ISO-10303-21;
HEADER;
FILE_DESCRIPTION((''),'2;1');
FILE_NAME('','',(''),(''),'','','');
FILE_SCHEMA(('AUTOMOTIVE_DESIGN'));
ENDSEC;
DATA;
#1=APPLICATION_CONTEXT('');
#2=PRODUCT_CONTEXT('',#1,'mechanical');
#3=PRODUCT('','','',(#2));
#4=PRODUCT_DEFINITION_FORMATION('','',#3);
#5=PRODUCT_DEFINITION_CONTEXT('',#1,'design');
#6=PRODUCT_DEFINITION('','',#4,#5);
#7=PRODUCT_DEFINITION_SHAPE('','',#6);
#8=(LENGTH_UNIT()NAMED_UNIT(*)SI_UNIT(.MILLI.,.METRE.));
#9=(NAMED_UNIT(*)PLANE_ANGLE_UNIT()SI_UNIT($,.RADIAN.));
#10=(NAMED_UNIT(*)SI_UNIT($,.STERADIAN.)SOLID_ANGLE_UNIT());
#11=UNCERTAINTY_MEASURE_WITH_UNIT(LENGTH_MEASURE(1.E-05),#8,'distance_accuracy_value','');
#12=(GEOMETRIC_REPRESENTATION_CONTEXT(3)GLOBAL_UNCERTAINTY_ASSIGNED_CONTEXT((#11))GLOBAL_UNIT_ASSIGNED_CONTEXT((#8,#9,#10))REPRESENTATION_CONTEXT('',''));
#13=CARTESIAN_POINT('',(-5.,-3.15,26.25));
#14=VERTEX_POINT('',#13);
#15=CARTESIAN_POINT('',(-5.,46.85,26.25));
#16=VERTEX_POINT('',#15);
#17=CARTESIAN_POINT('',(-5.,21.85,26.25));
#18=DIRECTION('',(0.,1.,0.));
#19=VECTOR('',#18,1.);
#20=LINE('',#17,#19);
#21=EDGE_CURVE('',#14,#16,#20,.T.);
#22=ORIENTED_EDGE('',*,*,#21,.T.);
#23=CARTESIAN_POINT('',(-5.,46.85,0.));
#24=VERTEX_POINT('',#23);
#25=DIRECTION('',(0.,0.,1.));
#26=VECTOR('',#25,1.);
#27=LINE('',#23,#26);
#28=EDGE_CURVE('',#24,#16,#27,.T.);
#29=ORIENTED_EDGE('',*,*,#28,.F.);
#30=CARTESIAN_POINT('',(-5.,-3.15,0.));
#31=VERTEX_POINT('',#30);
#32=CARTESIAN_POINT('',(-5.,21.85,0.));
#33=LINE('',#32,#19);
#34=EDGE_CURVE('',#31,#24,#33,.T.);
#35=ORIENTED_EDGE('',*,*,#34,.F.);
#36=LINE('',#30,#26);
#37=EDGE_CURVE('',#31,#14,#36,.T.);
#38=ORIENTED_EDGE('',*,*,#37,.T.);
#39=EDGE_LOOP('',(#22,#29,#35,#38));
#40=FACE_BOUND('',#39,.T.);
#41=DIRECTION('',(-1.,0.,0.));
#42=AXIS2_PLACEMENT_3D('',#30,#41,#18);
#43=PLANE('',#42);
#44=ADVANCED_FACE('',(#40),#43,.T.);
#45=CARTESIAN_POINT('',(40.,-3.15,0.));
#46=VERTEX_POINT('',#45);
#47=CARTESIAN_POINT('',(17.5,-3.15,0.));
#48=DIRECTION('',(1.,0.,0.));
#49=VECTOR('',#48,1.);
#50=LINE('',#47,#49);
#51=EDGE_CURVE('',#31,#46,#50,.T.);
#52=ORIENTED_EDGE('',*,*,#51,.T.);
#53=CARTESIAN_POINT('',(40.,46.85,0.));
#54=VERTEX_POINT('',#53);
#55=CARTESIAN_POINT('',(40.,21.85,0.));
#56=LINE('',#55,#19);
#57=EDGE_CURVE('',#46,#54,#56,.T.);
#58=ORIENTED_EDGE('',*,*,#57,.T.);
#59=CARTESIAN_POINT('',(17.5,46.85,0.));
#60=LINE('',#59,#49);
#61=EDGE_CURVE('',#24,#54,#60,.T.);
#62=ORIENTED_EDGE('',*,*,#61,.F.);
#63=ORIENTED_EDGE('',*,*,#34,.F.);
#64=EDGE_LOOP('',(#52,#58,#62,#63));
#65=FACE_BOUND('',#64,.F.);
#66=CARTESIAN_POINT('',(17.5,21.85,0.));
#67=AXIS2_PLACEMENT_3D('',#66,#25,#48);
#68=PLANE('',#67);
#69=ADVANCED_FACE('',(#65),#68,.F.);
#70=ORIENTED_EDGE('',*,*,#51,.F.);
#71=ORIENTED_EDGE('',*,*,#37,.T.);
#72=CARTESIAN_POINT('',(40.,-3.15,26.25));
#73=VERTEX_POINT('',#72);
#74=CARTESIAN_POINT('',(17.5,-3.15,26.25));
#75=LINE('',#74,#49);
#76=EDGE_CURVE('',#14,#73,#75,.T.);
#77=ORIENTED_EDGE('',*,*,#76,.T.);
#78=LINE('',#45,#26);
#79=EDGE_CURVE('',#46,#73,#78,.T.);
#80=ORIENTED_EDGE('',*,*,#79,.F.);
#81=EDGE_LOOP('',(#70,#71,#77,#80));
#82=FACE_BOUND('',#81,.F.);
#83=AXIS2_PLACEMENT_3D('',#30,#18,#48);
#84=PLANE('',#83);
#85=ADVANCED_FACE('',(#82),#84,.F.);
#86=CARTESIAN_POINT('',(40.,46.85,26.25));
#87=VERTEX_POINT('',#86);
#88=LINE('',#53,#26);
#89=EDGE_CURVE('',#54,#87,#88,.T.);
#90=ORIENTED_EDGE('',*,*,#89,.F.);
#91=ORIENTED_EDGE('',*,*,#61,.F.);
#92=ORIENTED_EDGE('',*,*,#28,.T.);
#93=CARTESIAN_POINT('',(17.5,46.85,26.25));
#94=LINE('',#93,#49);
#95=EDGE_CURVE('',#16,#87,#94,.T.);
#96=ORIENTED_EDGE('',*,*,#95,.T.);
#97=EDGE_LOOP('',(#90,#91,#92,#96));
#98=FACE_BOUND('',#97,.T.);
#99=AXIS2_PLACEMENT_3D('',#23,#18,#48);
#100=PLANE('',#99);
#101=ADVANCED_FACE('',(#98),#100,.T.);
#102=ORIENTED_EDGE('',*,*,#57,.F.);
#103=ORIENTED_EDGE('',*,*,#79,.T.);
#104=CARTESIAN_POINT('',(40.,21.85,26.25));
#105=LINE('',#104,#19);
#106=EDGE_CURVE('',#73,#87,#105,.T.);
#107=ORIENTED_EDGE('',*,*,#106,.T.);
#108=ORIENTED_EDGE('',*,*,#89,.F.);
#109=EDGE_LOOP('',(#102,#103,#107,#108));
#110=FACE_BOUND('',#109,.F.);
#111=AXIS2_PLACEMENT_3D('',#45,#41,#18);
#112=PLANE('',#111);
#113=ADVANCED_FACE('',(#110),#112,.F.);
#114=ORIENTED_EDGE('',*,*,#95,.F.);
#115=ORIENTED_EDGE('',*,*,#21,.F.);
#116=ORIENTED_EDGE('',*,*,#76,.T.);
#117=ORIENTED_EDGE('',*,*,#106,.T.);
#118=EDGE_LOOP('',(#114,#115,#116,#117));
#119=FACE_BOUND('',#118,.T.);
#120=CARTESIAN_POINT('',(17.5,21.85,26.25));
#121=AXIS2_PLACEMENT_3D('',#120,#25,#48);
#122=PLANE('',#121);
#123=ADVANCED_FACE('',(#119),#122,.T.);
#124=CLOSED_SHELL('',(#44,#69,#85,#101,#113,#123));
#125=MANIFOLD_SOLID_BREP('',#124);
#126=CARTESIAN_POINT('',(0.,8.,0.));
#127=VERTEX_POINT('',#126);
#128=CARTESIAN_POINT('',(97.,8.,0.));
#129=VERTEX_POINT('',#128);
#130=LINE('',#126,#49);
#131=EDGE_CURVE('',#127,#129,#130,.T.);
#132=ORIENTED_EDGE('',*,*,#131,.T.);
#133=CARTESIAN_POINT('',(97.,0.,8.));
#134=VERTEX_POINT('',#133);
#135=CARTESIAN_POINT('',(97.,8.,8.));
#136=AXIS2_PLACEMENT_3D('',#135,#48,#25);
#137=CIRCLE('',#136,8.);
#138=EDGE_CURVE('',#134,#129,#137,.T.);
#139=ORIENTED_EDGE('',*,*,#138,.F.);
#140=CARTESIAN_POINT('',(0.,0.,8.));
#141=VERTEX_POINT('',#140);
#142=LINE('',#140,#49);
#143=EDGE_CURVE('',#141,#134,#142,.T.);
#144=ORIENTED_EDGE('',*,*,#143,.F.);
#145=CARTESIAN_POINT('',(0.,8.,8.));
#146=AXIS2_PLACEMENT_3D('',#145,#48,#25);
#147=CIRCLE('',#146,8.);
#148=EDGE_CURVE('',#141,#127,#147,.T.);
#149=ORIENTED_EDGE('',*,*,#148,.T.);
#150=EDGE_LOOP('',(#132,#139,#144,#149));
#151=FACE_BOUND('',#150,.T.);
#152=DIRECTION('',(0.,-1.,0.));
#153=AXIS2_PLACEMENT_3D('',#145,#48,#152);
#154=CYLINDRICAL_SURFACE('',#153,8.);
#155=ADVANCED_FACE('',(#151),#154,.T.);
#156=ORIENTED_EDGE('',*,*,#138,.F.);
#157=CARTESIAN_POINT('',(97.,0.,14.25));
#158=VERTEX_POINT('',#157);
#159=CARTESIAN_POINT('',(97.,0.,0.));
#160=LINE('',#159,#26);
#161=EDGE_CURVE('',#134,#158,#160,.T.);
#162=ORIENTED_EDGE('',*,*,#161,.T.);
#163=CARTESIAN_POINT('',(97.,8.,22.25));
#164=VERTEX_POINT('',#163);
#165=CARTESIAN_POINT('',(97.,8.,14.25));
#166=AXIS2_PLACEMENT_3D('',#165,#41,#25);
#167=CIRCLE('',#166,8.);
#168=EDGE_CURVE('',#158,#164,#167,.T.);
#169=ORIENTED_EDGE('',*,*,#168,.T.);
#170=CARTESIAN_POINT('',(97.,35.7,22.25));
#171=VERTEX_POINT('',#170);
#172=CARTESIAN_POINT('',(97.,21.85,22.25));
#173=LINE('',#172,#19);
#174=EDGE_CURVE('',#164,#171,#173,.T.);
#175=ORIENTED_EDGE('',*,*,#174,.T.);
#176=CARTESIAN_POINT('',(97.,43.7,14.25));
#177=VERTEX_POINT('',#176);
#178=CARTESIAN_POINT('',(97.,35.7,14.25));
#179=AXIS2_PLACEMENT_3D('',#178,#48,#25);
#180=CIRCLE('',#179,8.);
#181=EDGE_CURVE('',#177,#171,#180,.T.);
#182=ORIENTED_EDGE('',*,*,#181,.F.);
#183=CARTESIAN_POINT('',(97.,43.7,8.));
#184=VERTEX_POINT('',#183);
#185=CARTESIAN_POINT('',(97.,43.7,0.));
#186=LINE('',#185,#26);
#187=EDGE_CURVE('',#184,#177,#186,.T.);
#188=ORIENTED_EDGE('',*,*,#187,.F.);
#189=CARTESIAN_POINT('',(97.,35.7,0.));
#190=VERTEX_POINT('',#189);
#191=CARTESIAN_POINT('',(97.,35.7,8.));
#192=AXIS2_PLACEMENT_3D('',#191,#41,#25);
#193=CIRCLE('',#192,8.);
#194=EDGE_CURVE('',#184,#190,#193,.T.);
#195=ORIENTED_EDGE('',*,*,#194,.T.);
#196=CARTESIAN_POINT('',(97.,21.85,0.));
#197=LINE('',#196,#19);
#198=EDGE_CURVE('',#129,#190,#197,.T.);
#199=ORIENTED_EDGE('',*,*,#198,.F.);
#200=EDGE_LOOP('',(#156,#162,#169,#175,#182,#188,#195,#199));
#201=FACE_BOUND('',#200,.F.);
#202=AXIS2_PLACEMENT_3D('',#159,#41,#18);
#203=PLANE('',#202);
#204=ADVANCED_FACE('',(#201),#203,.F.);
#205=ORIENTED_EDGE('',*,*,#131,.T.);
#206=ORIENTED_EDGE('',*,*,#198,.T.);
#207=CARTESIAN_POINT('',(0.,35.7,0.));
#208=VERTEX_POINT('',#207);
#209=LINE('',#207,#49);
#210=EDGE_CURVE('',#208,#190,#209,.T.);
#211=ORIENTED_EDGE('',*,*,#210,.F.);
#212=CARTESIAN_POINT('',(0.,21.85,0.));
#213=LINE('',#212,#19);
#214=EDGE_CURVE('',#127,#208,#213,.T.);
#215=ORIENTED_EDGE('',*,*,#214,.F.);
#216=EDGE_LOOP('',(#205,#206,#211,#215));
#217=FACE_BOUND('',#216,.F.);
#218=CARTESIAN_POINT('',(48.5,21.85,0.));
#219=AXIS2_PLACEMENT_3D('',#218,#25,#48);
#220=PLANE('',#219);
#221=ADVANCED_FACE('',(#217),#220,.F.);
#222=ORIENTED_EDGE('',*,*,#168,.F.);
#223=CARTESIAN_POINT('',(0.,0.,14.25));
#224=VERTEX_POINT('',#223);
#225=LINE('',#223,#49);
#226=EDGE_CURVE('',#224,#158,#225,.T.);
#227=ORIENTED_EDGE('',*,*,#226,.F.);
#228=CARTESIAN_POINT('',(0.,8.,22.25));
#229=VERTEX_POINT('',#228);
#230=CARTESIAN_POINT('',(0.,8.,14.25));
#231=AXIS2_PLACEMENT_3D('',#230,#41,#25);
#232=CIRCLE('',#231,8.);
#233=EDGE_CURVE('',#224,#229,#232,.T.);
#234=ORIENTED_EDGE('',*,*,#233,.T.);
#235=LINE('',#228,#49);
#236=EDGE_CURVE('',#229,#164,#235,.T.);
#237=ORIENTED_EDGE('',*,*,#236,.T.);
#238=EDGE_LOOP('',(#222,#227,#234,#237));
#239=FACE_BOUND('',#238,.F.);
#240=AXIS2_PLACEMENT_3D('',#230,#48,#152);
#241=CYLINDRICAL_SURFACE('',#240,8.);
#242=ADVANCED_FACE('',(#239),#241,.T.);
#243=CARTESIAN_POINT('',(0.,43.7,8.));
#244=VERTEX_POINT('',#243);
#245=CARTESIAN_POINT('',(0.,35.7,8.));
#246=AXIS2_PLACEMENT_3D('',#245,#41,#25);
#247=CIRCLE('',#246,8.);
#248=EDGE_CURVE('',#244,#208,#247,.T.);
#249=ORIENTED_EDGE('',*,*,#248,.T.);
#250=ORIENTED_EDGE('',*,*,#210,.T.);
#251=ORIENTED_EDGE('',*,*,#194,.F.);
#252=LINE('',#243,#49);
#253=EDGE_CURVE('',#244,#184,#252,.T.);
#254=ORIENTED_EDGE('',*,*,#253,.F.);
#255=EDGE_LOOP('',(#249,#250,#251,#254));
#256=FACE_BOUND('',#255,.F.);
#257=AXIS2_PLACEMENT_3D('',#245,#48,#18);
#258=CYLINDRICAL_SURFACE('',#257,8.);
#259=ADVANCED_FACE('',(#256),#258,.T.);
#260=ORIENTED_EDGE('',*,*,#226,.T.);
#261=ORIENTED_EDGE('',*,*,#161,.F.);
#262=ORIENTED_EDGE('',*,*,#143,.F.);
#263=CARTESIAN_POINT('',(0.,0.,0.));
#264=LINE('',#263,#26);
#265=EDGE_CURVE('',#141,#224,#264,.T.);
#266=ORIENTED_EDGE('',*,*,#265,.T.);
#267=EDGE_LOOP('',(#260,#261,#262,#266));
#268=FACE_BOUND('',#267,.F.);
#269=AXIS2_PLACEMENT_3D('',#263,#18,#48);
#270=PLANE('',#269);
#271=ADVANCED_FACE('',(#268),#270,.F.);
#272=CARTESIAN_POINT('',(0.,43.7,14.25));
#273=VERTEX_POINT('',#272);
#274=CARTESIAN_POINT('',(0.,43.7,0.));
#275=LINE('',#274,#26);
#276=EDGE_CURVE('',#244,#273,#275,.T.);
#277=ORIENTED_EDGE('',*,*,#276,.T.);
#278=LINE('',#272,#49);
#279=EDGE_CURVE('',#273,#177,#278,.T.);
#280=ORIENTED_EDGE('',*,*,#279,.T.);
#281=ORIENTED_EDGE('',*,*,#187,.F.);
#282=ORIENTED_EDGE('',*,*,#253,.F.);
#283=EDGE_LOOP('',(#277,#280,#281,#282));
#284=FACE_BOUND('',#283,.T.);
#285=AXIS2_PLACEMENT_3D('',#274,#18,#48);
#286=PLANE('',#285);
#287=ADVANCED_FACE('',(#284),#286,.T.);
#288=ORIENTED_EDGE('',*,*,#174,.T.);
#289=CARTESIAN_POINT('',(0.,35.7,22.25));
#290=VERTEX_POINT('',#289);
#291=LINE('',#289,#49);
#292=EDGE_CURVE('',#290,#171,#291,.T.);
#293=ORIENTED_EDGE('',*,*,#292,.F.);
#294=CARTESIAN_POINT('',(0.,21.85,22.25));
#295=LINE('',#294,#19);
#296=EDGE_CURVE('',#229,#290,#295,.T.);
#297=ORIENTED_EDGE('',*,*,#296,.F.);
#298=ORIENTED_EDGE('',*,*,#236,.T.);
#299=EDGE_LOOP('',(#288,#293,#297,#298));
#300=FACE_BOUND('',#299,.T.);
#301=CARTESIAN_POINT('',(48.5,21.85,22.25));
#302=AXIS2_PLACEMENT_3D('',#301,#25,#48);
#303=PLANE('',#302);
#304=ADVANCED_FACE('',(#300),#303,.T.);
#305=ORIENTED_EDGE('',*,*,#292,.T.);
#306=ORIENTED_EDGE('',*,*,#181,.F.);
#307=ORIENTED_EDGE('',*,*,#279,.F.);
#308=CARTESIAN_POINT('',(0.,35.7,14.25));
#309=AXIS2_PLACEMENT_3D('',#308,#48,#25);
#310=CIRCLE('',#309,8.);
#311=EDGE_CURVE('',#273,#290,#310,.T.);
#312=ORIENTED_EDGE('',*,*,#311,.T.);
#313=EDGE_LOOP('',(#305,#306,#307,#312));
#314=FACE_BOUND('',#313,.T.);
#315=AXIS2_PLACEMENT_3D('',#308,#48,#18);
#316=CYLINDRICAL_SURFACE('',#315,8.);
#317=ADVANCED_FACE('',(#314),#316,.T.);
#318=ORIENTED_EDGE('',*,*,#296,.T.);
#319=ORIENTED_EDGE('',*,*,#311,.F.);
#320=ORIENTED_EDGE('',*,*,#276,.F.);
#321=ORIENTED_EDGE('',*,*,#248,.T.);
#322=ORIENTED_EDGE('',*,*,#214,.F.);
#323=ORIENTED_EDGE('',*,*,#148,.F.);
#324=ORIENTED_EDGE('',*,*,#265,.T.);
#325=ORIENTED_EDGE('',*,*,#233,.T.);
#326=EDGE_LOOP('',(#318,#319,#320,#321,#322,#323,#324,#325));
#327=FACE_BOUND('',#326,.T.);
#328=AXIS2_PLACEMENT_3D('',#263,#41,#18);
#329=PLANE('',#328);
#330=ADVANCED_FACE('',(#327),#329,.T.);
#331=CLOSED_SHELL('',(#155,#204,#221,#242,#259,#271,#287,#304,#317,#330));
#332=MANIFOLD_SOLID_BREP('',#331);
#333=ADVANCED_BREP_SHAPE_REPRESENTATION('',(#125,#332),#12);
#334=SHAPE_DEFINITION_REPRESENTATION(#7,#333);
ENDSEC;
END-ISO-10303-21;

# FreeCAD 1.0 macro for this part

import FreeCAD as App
import Part
import Sketcher
Q = App.Units.Quantity


def edges_at(feature, points):
    """Names of the edges that pass closest to the given points."""
    edges = feature.Shape.Edges
    near = lambda p: min(range(len(edges)), key=lambda i: edges[i].distToShape(Part.Vertex(*p))[0])
    return sorted({f"Edge{near(p) + 1}" for p in points})

doc = App.newDocument("Part")
body = doc.addObject("PartDesign::Body", "Body")

# Sketch on XY plane
sketch1 = doc.addObject("Sketcher::SketchObject", "Sketch")
body.addObject(sketch1)
sketch1.AttachmentSupport = (doc.XY_Plane, [""])
sketch1.MapMode = "FlatFace"
sketch1.addGeometry(Part.LineSegment(App.Vector(0, 44, 0), App.Vector(0, 0, 0)), False)
sketch1.addGeometry(Part.LineSegment(App.Vector(0, 0, 0), App.Vector(97, 0, 0)), False)
sketch1.addGeometry(Part.LineSegment(App.Vector(97, 0, 0), App.Vector(97, 44, 0)), False)
sketch1.addGeometry(Part.LineSegment(App.Vector(97, 44, 0), App.Vector(0, 44, 0)), False)
sketch1.addConstraint(Sketcher.Constraint("Coincident", 0, 2, 1, 1))
sketch1.addConstraint(Sketcher.Constraint("Coincident", 1, 2, 2, 1))
sketch1.addConstraint(Sketcher.Constraint("Coincident", 2, 2, 3, 1))
sketch1.addConstraint(Sketcher.Constraint("Coincident", 3, 2, 0, 1))
sketch1.addConstraint(Sketcher.Constraint("Vertical", 0))
sketch1.addConstraint(Sketcher.Constraint("Horizontal", 1))
sketch1.addConstraint(Sketcher.Constraint("Vertical", 2))
sketch1.addConstraint(Sketcher.Constraint("Horizontal", 3))
sketch1.addConstraint(Sketcher.Constraint("Coincident", 0, 2, -1, 1))
sketch1.addConstraint(Sketcher.Constraint("DistanceX", 1, 1, 1, 2, Q("97 mm")))
sketch1.addConstraint(Sketcher.Constraint("DistanceY", 0, 2, 0, 1, Q("43.7 mm")))
pad1 = doc.addObject("PartDesign::Pad", "Pad")
body.addObject(pad1)
pad1.Profile = sketch1
pad1.Length = 22.25
doc.recompute()

fillet = doc.addObject("PartDesign::Fillet", "Fillet")
body.addObject(fillet)
fillet.Base = (pad1, edges_at(pad1, [
    (48.5, 0, 0),
    (48.5, 0, 22.25),
    (48.5, 43.7, 0),
    (48.5, 43.7, 22.25),
]))
fillet.Radius = 8
body2 = doc.addObject("PartDesign::Body", "Body001")

# Sketch on XY plane
sketch2 = doc.addObject("Sketcher::SketchObject", "Sketch001")
body2.addObject(sketch2)
sketch2.AttachmentSupport = (doc.getObject("XY_Plane001"), [""])
sketch2.MapMode = "FlatFace"
sketch2.addGeometry(Part.LineSegment(App.Vector(-5, 47, 0), App.Vector(-5, -3, 0)), False)
sketch2.addGeometry(Part.LineSegment(App.Vector(-5, -3, 0), App.Vector(40, -3, 0)), False)
sketch2.addGeometry(Part.LineSegment(App.Vector(40, -3, 0), App.Vector(40, 47, 0)), False)
sketch2.addGeometry(Part.LineSegment(App.Vector(40, 47, 0), App.Vector(-5, 47, 0)), False)
sketch2.addConstraint(Sketcher.Constraint("Coincident", 0, 2, 1, 1))
sketch2.addConstraint(Sketcher.Constraint("Coincident", 1, 2, 2, 1))
sketch2.addConstraint(Sketcher.Constraint("Coincident", 2, 2, 3, 1))
sketch2.addConstraint(Sketcher.Constraint("Coincident", 3, 2, 0, 1))
sketch2.addConstraint(Sketcher.Constraint("Vertical", 0))
sketch2.addConstraint(Sketcher.Constraint("Horizontal", 1))
sketch2.addConstraint(Sketcher.Constraint("Vertical", 2))
sketch2.addConstraint(Sketcher.Constraint("Horizontal", 3))
sketch2.addConstraint(Sketcher.Constraint("DistanceX", 1, 1, 1, 2, Q("45 mm")))
sketch2.addConstraint(Sketcher.Constraint("DistanceY", 0, 2, 0, 1, Q("50 mm")))
sketch2.addConstraint(Sketcher.Constraint("DistanceX", 0, 2, -1, 1, Q("5 mm")))
sketch2.addConstraint(Sketcher.Constraint("DistanceY", 0, 2, -1, 1, Q("3.15 mm")))
pad2 = doc.addObject("PartDesign::Pad", "Pad001")
body2.addObject(pad2)
pad2.Profile = sketch2
pad2.Length = 26.25

doc.recompute()
